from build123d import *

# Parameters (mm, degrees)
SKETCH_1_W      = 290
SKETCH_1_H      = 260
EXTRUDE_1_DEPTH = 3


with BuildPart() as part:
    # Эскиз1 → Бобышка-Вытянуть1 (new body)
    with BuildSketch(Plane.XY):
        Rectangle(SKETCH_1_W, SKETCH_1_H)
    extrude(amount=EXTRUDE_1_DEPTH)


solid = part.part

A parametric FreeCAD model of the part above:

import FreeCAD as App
import Part
import Sketcher

doc = App.newDocument("Part")
params = doc.addObject("Spreadsheet::Sheet", "Params")
for row, (alias, value) in enumerate([
    ("sketch1_width", "290 mm"),
    ("sketch1_height", "260 mm"),
    ("pad1_length", "3 mm"),
], start=1):
    params.set(f"A{row}", alias)
    params.set(f"B{row}", "=" + value)
    params.setAlias(f"B{row}", alias)

body = doc.addObject("PartDesign::Body", "Body")

sketch1 = body.newObject("Sketcher::SketchObject", "Sketch")
sketch1.AttachmentSupport = (doc.getObject("XY_Plane"), [""])
sketch1.MapMode = "FlatFace"
sketch1.addGeometry([
    Part.LineSegment(App.Vector(-145, 130, 0), App.Vector(-145, -130, 0)),
    Part.LineSegment(App.Vector(-145, -130, 0), App.Vector(145, -130, 0)),
    Part.LineSegment(App.Vector(145, -130, 0), App.Vector(145, 130, 0)),
    Part.LineSegment(App.Vector(145, 130, 0), App.Vector(-145, 130, 0)),
], False)
sketch1.addConstraint([
    Sketcher.Constraint("Coincident", 0, 2, 1, 1),
    Sketcher.Constraint("Coincident", 1, 2, 2, 1),
    Sketcher.Constraint("Coincident", 2, 2, 3, 1),
    Sketcher.Constraint("Coincident", 3, 2, 0, 1),
    Sketcher.Constraint("Vertical", 0),
    Sketcher.Constraint("Horizontal", 1),
    Sketcher.Constraint("Vertical", 2),
    Sketcher.Constraint("Horizontal", 3),
    Sketcher.Constraint("Symmetric", 0, 2, 2, 2, -1, 1),
    Sketcher.Constraint("DistanceX", 1, 1, 1, 2, 290.0),
    Sketcher.Constraint("DistanceY", 0, 2, 0, 1, 260.0),
])
sketch1.setExpression("Constraints[9]", "Params.sketch1_width")
sketch1.setExpression("Constraints[10]", "Params.sketch1_height")
pad1 = body.newObject("PartDesign::Pad", "Pad")
pad1.Profile = sketch1
pad1.setExpression("Length", "Params.pad1_length")

doc.recompute()
